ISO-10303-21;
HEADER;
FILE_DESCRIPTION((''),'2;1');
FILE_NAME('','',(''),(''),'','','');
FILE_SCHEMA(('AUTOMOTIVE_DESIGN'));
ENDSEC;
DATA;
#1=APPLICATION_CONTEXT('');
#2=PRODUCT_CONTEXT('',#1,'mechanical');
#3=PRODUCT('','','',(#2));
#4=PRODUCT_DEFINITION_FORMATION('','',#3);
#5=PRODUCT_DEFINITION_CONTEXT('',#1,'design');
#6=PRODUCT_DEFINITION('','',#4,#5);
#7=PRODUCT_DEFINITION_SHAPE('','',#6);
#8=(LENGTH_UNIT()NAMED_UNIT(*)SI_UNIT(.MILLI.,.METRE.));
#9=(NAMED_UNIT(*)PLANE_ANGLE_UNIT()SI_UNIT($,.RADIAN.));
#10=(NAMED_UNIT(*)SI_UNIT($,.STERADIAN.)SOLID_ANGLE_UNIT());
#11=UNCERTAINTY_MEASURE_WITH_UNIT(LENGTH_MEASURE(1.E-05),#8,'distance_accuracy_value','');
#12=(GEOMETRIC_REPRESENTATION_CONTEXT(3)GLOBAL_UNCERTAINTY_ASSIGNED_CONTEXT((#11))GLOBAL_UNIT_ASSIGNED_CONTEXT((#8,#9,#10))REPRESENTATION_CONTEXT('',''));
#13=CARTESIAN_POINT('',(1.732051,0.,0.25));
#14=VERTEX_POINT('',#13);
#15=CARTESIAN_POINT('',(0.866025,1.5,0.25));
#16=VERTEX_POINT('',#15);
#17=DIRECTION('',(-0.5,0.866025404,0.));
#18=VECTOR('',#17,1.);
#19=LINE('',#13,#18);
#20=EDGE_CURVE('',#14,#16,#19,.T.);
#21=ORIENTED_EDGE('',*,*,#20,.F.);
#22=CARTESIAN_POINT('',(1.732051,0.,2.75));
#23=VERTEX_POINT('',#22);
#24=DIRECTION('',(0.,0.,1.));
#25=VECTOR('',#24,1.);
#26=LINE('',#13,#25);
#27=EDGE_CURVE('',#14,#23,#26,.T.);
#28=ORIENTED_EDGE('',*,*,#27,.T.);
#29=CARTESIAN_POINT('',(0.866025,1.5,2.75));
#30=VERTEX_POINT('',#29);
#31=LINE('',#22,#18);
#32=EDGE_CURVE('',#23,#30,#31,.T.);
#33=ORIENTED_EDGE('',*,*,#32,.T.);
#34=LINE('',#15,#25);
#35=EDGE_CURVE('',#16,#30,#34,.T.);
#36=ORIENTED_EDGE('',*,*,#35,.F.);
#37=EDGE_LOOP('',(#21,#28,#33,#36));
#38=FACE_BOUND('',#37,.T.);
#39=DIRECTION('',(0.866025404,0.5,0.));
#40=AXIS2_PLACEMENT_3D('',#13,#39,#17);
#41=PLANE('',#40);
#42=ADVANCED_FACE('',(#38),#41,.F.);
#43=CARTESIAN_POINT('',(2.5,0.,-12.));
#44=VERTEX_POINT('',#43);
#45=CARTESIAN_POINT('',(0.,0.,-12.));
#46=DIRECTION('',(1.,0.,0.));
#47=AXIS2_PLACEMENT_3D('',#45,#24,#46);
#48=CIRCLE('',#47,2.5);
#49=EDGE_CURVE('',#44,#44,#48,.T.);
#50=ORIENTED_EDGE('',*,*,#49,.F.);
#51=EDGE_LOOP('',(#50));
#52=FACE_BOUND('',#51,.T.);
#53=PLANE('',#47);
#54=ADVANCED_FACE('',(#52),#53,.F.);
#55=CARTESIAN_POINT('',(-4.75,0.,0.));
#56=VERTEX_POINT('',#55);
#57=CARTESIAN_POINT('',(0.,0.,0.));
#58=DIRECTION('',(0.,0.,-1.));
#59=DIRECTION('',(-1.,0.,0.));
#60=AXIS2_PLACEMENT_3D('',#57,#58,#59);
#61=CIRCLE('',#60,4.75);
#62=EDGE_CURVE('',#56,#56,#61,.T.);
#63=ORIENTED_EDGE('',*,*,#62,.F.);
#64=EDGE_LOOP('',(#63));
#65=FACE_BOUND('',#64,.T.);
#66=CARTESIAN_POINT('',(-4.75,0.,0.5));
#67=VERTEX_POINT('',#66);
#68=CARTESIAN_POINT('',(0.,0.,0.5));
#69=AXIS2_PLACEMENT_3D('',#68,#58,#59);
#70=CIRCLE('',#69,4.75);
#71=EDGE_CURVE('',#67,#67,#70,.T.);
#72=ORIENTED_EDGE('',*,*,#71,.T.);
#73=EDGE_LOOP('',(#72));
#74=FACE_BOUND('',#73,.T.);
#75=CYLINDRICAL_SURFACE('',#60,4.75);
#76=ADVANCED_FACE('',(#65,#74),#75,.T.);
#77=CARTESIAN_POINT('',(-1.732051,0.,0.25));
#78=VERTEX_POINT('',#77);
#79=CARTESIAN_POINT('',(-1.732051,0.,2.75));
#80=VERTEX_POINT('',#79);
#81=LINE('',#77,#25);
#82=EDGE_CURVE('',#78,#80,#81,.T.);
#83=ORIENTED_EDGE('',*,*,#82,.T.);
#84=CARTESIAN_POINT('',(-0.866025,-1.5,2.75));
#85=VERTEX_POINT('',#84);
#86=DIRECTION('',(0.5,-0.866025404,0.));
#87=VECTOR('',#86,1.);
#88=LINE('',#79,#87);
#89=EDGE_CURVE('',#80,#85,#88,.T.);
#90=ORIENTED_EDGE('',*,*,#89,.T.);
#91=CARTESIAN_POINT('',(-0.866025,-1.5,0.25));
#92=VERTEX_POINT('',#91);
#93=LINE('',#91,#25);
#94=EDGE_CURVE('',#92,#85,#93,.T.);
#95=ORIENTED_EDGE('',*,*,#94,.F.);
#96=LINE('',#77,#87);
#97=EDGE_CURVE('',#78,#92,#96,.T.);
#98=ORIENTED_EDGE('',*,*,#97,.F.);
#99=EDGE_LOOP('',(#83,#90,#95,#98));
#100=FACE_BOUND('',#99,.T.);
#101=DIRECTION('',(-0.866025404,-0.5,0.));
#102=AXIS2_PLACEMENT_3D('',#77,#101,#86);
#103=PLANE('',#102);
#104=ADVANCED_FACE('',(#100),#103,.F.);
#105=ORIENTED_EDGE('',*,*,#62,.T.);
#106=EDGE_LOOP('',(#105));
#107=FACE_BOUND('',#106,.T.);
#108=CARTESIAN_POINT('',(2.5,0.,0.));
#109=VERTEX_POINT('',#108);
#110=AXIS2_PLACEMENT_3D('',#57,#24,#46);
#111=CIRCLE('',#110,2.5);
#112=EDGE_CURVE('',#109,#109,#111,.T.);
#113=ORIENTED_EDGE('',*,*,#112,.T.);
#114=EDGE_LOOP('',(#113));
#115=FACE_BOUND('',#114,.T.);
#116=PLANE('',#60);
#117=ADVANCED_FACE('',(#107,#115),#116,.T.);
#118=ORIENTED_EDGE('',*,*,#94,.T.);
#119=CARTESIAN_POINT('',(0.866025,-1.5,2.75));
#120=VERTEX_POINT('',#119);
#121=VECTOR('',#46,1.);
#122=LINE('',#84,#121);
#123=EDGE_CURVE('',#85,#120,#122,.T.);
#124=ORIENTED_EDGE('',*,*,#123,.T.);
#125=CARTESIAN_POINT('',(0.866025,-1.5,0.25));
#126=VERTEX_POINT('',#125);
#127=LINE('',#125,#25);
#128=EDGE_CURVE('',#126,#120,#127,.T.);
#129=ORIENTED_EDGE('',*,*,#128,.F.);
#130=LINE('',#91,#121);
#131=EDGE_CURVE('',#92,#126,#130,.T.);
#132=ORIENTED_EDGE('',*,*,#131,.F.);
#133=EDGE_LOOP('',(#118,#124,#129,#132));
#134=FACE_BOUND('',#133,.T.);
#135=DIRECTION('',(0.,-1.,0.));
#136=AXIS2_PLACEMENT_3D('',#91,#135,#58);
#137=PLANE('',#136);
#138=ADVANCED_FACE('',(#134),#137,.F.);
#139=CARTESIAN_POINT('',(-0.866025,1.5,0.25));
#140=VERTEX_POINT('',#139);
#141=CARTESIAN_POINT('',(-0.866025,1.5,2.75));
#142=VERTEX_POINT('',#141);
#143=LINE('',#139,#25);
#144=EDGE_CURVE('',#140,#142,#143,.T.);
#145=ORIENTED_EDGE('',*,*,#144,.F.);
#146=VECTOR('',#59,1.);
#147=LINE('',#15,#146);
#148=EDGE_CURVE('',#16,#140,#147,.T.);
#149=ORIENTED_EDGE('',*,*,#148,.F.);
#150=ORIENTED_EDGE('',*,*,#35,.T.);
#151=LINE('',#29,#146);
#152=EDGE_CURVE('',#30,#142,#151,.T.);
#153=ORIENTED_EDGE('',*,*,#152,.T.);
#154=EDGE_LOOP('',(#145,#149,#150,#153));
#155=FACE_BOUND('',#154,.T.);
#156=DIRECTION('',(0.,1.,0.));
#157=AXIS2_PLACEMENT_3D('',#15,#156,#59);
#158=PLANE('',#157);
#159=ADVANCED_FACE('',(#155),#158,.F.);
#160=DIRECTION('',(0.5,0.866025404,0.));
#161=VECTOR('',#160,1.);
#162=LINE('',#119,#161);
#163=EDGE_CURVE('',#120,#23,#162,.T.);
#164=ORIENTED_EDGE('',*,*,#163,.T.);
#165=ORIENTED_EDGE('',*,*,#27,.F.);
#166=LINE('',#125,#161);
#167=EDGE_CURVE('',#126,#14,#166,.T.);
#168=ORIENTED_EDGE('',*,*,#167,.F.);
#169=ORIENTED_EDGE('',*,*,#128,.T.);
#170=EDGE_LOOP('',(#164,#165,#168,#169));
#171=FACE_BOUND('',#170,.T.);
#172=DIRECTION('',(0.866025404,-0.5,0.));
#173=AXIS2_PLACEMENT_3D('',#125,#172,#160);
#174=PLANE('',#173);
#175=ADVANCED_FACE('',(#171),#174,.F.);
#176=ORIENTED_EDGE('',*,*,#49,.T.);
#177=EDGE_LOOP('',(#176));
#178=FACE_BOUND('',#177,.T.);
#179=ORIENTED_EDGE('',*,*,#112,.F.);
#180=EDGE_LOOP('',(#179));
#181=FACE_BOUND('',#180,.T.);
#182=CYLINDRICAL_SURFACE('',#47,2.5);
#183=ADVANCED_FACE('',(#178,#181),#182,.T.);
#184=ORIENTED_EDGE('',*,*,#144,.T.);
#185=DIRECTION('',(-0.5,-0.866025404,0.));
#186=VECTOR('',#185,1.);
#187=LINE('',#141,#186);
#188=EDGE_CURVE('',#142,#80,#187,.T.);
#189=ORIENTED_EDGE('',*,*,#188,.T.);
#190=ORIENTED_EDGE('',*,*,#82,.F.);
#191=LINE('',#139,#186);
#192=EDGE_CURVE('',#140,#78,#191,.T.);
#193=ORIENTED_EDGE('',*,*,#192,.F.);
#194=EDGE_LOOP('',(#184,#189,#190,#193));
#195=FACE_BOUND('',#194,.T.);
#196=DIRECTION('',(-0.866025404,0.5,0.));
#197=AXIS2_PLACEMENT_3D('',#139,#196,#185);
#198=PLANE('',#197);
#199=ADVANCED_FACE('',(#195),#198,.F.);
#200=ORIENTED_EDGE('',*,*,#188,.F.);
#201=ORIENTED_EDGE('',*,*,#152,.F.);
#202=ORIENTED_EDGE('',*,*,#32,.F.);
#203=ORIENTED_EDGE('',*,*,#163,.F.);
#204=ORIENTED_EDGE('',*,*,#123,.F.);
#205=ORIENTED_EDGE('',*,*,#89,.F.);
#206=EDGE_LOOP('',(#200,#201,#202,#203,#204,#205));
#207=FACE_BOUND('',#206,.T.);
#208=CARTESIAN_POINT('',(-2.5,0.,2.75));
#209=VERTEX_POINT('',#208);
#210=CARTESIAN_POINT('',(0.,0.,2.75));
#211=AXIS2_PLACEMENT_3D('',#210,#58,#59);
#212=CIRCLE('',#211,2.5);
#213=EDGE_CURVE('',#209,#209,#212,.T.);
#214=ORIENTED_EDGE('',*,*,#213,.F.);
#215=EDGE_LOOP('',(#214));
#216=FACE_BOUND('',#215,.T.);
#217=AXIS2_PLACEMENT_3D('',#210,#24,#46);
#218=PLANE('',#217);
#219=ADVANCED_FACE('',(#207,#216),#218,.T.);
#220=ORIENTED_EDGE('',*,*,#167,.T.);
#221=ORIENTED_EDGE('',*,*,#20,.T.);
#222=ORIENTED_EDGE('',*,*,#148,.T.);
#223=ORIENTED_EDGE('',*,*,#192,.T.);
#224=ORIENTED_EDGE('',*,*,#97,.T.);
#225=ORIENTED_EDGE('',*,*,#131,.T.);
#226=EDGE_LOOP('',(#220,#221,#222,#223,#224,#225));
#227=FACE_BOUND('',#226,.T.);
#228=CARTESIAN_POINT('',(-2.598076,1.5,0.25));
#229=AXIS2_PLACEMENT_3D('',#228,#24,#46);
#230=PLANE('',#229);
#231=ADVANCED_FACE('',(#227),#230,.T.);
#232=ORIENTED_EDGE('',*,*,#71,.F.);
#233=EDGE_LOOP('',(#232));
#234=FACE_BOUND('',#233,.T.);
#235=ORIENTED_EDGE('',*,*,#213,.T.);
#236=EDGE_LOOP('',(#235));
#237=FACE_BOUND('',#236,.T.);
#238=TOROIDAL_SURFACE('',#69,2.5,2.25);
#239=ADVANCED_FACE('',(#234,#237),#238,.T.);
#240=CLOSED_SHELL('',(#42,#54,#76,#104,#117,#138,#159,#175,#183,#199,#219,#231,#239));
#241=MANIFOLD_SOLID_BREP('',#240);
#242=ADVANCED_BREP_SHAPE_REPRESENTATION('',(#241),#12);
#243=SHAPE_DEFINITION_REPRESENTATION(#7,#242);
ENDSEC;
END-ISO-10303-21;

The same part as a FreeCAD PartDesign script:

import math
import FreeCAD as App
import Part
import Sketcher

V = App.Vector
Q = App.Units.Quantity

doc = App.newDocument("Part")
body = doc.addObject("PartDesign::Body", "Body")

# Sketch on XY plane
sketch1 = body.newObject("Sketcher::SketchObject", "Sketch")
sketch1.AttachmentSupport = (doc.getObject("XY_Plane"), [""])
sketch1.MapMode = "FlatFace"
sketch1.addGeometry(Part.Circle(V(0, 0, 0), V(0, 0, 1), 2.5), False)
sketch1.addConstraint([
    Sketcher.Constraint("Coincident", 0, 3, -1, 1),
    Sketcher.Constraint("Diameter", 0, 5.0),
])
pad1 = body.newObject("PartDesign::Pad", "Pad")
pad1.Profile = sketch1
pad1.Length = 12
pad1.Reversed = True

# Sketch on YZ plane
sketch2 = body.newObject("Sketcher::SketchObject", "Sketch001")
sketch2.AttachmentSupport = (doc.getObject("YZ_Plane"), [""])
sketch2.MapMode = "FlatFace"
sketch2.addGeometry([
    Part.LineSegment(V(0, 0, 0), V(4.8, 0, 0)),  # 0
    Part.LineSegment(V(4.8, 0, 0), V(4.8, 0.5, 0)),  # 1
    Part.ArcOfCircle(Part.Circle(V(2.5, 0.5, 0), V(0, 0, 1), 2.2), math.radians(0), math.radians(90)),  # 2
    Part.LineSegment(V(2.5, 2.8, 0), V(0, 2.8, 0)),  # 3
    Part.LineSegment(V(0, 2.8, 0), V(0, 0, 0)),  # 4
], False)
sketch2.addConstraint([
    Sketcher.Constraint("Coincident", 0, 2, 1, 1),
    Sketcher.Constraint("Tangent", 1, 2, 2, 1),
    Sketcher.Constraint("Tangent", 2, 2, 3, 1),
    Sketcher.Constraint("Coincident", 3, 2, 4, 1),
    Sketcher.Constraint("Coincident", 4, 2, 0, 1),
    Sketcher.Constraint("Horizontal", 0),
    Sketcher.Constraint("Vertical", 1),
    Sketcher.Constraint("Horizontal", 3),
    Sketcher.Constraint("Vertical", 4),
    Sketcher.Constraint("Coincident", 4, 2, -1, 1),
    Sketcher.Constraint("Radius", 2, 2.25),
    Sketcher.Constraint("DistanceX", 3, 2, 3, 1, 2.5),
    Sketcher.Constraint("DistanceY", 1, 1, 1, 2, 0.5),
])
revolution = body.newObject("PartDesign::Revolution", "Revolution")
revolution.Profile = sketch2
revolution.ReferenceAxis = (sketch2, ["V_Axis"])
revolution.Angle = 360

# Sketch on XY plane
sketch3 = body.newObject("Sketcher::SketchObject", "Sketch002")
sketch3.AttachmentSupport = (doc.getObject("XY_Plane"), [""])
sketch3.MapMode = "FlatFace"
sketch3.AttachmentOffset = App.Placement(V(0, 0, 2.75), App.Rotation())
sketch3.addGeometry([
    Part.LineSegment(V(-0.9, 1.5, 0), V(-1.7, 0, 0)),  # 0
    Part.LineSegment(V(-1.7, 0, 0), V(-0.9, -1.5, 0)),  # 1
    Part.LineSegment(V(-0.9, -1.5, 0), V(0.9, -1.5, 0)),  # 2
    Part.LineSegment(V(0.9, -1.5, 0), V(1.7, 0, 0)),  # 3
    Part.LineSegment(V(1.7, 0, 0), V(0.9, 1.5, 0)),  # 4
    Part.LineSegment(V(0.9, 1.5, 0), V(-0.9, 1.5, 0)),  # 5
], False)
sketch3.addConstraint([
    Sketcher.Constraint("Coincident", 0, 2, 1, 1),
    Sketcher.Constraint("Coincident", 1, 2, 2, 1),
    Sketcher.Constraint("Coincident", 2, 2, 3, 1),
    Sketcher.Constraint("Coincident", 3, 2, 4, 1),
    Sketcher.Constraint("Coincident", 4, 2, 5, 1),
    Sketcher.Constraint("Coincident", 5, 2, 0, 1),
    Sketcher.Constraint("Horizontal", 2),
    Sketcher.Constraint("Horizontal", 5),
    Sketcher.Constraint("Symmetric", 0, 2, 3, 2, -1, 1),
    Sketcher.Constraint("Symmetric", 1, 2, 4, 2, -1, 1),
    Sketcher.Constraint("PointOnObject", 0, 2, -1),
    Sketcher.Constraint("Parallel", 0, 3),
    Sketcher.Constraint("Vertical", 2, 2, 4, 2),
    Sketcher.Constraint("Angle", 0, Q("-120 deg")),
    Sketcher.Constraint("DistanceY", 2, 2, 4, 2, 3.0),
    Sketcher.Constraint("DistanceX", 2, 1, 2, 2, 1.732051),
])
pocket1 = body.newObject("PartDesign::Pocket", "Pocket")
pocket1.Profile = sketch3
pocket1.Length = 2.5

doc.recompute()
